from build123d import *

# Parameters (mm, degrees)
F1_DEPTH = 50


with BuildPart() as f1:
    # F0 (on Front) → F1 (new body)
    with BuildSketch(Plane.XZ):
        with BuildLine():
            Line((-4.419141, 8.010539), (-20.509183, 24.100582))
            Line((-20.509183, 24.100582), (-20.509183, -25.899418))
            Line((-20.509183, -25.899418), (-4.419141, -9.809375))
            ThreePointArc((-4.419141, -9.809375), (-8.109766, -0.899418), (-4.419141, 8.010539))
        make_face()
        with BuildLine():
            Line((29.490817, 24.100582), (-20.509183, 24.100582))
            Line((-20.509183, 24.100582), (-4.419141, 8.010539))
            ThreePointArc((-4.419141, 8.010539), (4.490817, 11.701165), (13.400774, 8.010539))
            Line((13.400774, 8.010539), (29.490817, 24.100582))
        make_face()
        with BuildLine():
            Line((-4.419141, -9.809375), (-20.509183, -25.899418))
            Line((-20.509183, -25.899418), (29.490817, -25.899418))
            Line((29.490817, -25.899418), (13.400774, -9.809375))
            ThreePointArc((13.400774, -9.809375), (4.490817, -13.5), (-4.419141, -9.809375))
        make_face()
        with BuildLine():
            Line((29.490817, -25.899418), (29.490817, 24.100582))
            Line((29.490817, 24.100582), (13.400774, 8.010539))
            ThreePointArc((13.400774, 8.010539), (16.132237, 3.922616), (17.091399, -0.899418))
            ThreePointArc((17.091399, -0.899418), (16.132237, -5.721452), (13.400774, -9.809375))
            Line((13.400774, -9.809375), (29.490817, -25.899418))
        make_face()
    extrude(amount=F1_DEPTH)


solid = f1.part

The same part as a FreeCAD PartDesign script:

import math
import FreeCAD as App
import Part
import Sketcher


def add_polygon(sketch, points):
    """Adds a closed chain of lines whose ends are joined by coincident constraints."""
    first, n = sketch.GeometryCount, len(points)
    for a, b in zip(points, points[1:] + points[:1]):
        sketch.addGeometry(Part.LineSegment(App.Vector(*a, 0), App.Vector(*b, 0)), False)
    for i in range(n):
        sketch.addConstraint(Sketcher.Constraint("Coincident", first + i, 2, first + (i + 1) % n, 1))

doc = App.newDocument("Part")
body = doc.addObject("PartDesign::Body", "Body")

# Sketch on XZ plane
sketch1 = body.newObject("Sketcher::SketchObject", "Sketch")
sketch1.AttachmentSupport = (doc.getObject("XZ_Plane"), [""])
sketch1.MapMode = "FlatFace"
add_polygon(sketch1, [(-21, 24), (-21, -26), (29, -26), (29, 24)])  # lines 0-3
sketch1.addGeometry(Part.ArcOfCircle(Part.Circle(App.Vector(4, -1, 0), App.Vector(0, 0, 1), 13), math.radians(-135), math.radians(-45)), False)  # 4
sketch1.addGeometry(Part.ArcOfCircle(Part.Circle(App.Vector(4, -1, 0), App.Vector(0, 0, 1), 13), math.radians(135), math.radians(225)), False)  # 5
sketch1.addGeometry(Part.ArcOfCircle(Part.Circle(App.Vector(4, -1, 0), App.Vector(0, 0, 1), 13), math.radians(45), math.radians(135)), False)  # 6
sketch1.addGeometry(Part.ArcOfCircle(Part.Circle(App.Vector(4, -1, 0), App.Vector(0, 0, 1), 13), math.radians(0), math.radians(45)), False)  # 7
sketch1.addGeometry(Part.ArcOfCircle(Part.Circle(App.Vector(4, -1, 0), App.Vector(0, 0, 1), 13), math.radians(-45), math.radians(0)), False)  # 8
sketch1.addConstraint([
    Sketcher.Constraint("Tangent", 4, 1, 5, 2),
    Sketcher.Constraint("Tangent", 5, 1, 6, 2),
    Sketcher.Constraint("Tangent", 6, 1, 7, 2),
    Sketcher.Constraint("Tangent", 7, 1, 8, 2),
    Sketcher.Constraint("Tangent", 8, 1, 4, 2),
    Sketcher.Constraint("Vertical", 0),
    Sketcher.Constraint("Horizontal", 1),
    Sketcher.Constraint("Vertical", 2),
    Sketcher.Constraint("Horizontal", 3),
    Sketcher.Constraint("Coincident", 6, 3, 4, 3),
    Sketcher.Constraint("Horizontal", 5, 1, 6, 1),
    Sketcher.Constraint("Horizontal", 8, 3, 7, 1),
    Sketcher.Constraint("Horizontal", 4, 1, 8, 1),
    Sketcher.Constraint("Vertical", 4, 1, 5, 1),
    Sketcher.Constraint("Equal", 3, 0),
    Sketcher.Constraint("DistanceX", 1, 1, 1, 2, 50.0),
    Sketcher.Constraint("DistanceX", 0, 2, 5, 3, 24.999999),
    Sketcher.Constraint("DistanceY", 0, 2, 5, 3, 25.0),
    Sketcher.Constraint("Radius", 6, 12.600581),
    Sketcher.Constraint("DistanceX", -1, 1, 7, 1, 17.091399),
    Sketcher.Constraint("DistanceY", 5, 3, -1, 1, 0.899418),
    Sketcher.Constraint("DistanceX", 4, 1, -1, 1, 4.419141),
])
pad1 = body.newObject("PartDesign::Pad", "Pad")
pad1.Profile = sketch1
pad1.Length = 50

doc.recompute()
